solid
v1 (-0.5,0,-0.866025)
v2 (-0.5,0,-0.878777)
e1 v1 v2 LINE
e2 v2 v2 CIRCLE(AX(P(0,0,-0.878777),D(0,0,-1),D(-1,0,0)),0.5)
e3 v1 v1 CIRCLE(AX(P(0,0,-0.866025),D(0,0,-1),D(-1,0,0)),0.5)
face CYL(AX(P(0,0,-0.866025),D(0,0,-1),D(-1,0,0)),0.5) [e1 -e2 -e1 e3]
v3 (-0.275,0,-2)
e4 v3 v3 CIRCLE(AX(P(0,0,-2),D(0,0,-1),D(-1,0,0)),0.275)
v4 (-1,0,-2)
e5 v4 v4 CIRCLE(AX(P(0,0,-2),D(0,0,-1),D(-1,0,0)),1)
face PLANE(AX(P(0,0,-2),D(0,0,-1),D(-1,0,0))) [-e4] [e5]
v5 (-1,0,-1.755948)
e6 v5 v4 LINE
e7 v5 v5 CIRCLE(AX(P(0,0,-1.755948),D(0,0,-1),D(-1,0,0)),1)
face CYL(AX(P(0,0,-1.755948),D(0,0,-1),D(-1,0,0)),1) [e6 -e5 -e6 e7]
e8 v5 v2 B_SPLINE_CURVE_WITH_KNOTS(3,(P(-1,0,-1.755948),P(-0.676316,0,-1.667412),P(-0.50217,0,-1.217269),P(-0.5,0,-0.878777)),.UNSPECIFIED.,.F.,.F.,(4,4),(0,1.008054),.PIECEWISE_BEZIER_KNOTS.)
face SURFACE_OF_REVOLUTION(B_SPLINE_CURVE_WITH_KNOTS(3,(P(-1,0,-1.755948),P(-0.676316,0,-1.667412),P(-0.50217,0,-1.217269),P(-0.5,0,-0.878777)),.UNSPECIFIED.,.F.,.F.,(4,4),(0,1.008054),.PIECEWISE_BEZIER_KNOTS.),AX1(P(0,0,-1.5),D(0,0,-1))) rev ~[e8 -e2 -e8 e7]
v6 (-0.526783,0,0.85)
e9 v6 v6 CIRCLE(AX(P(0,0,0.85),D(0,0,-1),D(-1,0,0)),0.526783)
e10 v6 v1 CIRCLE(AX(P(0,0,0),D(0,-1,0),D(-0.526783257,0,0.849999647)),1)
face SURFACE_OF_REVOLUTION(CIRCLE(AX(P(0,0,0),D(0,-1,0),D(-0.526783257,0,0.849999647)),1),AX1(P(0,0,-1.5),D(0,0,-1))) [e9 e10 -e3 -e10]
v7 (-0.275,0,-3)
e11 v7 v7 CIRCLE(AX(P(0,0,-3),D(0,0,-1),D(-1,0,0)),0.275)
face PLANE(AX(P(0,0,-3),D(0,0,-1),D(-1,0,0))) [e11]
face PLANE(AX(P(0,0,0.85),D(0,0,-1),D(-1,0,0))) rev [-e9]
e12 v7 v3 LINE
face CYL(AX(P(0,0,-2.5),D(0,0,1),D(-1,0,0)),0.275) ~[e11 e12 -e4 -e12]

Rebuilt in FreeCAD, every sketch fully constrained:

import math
import FreeCAD as App
import Part
import Sketcher
Q = App.Units.Quantity

doc = App.newDocument("Part")
body = doc.addObject("PartDesign::Body", "Body")

# Sketch on XZ plane
sketch1 = doc.addObject("Sketcher::SketchObject", "Sketch")
body.addObject(sketch1)
sketch1.AttachmentSupport = (doc.XZ_Plane, [""])
sketch1.MapMode = "FlatFace"
sketch1.addGeometry(Part.LineSegment(App.Vector(-0.5, -0.866025, 0), App.Vector(-0.5, -0.878777, 0)), False)
sketch1.addGeometry(Part.BSplineCurve([App.Vector(-1, -1.755948, 0), App.Vector(-0.676316, -1.667412, 0), App.Vector(-0.50217, -1.217269, 0), App.Vector(-0.5, -0.878777, 0)], [4, 4], [0, 1.008054], False, 3, [1, 1, 1, 1], False), False)
sketch1.addGeometry(Part.LineSegment(App.Vector(-1, -1.755948, 0), App.Vector(-1, -2, 0)), False)
sketch1.addGeometry(Part.LineSegment(App.Vector(-1, -2, 0), App.Vector(-0.275, -2, 0)), False)
sketch1.addGeometry(Part.LineSegment(App.Vector(-0.275, -2, 0), App.Vector(-0.275, -3, 0)), False)
sketch1.addGeometry(Part.LineSegment(App.Vector(-0.275, -3, 0), App.Vector(0, -3, 0)), False)
sketch1.addGeometry(Part.LineSegment(App.Vector(0, -3, 0), App.Vector(0, 0.85, 0)), False)
sketch1.addGeometry(Part.LineSegment(App.Vector(0, 0.85, 0), App.Vector(-0.526783, 0.85, 0)), False)
sketch1.addGeometry(Part.ArcOfCircle(Part.Circle(App.Vector(0, 0, 0), App.Vector(0, 0, 1), 1), math.radians(121.788369), math.radians(239.999983)), False)
sketch1.addConstraint(Sketcher.Constraint("Block", 1))
sketch1.addConstraint(Sketcher.Constraint("Coincident", 0, 2, 1, 2))
sketch1.addConstraint(Sketcher.Constraint("Coincident", 1, 1, 2, 1))
sketch1.addConstraint(Sketcher.Constraint("Coincident", 2, 2, 3, 1))
sketch1.addConstraint(Sketcher.Constraint("Coincident", 3, 2, 4, 1))
sketch1.addConstraint(Sketcher.Constraint("Coincident", 4, 2, 5, 1))
sketch1.addConstraint(Sketcher.Constraint("Coincident", 5, 2, 6, 1))
sketch1.addConstraint(Sketcher.Constraint("Coincident", 6, 2, 7, 1))
sketch1.addConstraint(Sketcher.Constraint("Coincident", 7, 2, 8, 1))
sketch1.addConstraint(Sketcher.Constraint("Coincident", 8, 2, 0, 1))
sketch1.addConstraint(Sketcher.Constraint("Vertical", 0))
sketch1.addConstraint(Sketcher.Constraint("Vertical", 2))
sketch1.addConstraint(Sketcher.Constraint("Horizontal", 3))
sketch1.addConstraint(Sketcher.Constraint("Vertical", 4))
sketch1.addConstraint(Sketcher.Constraint("Horizontal", 5))
sketch1.addConstraint(Sketcher.Constraint("Vertical", 6))
sketch1.addConstraint(Sketcher.Constraint("Horizontal", 7))
sketch1.addConstraint(Sketcher.Constraint("Coincident", 8, 3, -1, 1))
sketch1.addConstraint(Sketcher.Constraint("PointOnObject", 5, 2, -2))
sketch1.addConstraint(Sketcher.Constraint("Radius", 8, Q("1 mm")))
sketch1.addConstraint(Sketcher.Constraint("DistanceY", 4, 2, 4, 1, Q("1 mm")))
sketch1.addConstraint(Sketcher.Constraint("DistanceY", 2, 2, -1, 1, Q("2 mm")))
sketch1.addConstraint(Sketcher.Constraint("DistanceY", 6, 1, 6, 2, Q("3.85 mm")))
sketch1.addConstraint(Sketcher.Constraint("DistanceX", 3, 1, 3, 2, Q("0.725 mm")))
revolution = doc.addObject("PartDesign::Revolution", "Revolution")
body.addObject(revolution)
revolution.Profile = sketch1
revolution.ReferenceAxis = (sketch1, ["V_Axis"])
revolution.Angle = 360

doc.recompute()
